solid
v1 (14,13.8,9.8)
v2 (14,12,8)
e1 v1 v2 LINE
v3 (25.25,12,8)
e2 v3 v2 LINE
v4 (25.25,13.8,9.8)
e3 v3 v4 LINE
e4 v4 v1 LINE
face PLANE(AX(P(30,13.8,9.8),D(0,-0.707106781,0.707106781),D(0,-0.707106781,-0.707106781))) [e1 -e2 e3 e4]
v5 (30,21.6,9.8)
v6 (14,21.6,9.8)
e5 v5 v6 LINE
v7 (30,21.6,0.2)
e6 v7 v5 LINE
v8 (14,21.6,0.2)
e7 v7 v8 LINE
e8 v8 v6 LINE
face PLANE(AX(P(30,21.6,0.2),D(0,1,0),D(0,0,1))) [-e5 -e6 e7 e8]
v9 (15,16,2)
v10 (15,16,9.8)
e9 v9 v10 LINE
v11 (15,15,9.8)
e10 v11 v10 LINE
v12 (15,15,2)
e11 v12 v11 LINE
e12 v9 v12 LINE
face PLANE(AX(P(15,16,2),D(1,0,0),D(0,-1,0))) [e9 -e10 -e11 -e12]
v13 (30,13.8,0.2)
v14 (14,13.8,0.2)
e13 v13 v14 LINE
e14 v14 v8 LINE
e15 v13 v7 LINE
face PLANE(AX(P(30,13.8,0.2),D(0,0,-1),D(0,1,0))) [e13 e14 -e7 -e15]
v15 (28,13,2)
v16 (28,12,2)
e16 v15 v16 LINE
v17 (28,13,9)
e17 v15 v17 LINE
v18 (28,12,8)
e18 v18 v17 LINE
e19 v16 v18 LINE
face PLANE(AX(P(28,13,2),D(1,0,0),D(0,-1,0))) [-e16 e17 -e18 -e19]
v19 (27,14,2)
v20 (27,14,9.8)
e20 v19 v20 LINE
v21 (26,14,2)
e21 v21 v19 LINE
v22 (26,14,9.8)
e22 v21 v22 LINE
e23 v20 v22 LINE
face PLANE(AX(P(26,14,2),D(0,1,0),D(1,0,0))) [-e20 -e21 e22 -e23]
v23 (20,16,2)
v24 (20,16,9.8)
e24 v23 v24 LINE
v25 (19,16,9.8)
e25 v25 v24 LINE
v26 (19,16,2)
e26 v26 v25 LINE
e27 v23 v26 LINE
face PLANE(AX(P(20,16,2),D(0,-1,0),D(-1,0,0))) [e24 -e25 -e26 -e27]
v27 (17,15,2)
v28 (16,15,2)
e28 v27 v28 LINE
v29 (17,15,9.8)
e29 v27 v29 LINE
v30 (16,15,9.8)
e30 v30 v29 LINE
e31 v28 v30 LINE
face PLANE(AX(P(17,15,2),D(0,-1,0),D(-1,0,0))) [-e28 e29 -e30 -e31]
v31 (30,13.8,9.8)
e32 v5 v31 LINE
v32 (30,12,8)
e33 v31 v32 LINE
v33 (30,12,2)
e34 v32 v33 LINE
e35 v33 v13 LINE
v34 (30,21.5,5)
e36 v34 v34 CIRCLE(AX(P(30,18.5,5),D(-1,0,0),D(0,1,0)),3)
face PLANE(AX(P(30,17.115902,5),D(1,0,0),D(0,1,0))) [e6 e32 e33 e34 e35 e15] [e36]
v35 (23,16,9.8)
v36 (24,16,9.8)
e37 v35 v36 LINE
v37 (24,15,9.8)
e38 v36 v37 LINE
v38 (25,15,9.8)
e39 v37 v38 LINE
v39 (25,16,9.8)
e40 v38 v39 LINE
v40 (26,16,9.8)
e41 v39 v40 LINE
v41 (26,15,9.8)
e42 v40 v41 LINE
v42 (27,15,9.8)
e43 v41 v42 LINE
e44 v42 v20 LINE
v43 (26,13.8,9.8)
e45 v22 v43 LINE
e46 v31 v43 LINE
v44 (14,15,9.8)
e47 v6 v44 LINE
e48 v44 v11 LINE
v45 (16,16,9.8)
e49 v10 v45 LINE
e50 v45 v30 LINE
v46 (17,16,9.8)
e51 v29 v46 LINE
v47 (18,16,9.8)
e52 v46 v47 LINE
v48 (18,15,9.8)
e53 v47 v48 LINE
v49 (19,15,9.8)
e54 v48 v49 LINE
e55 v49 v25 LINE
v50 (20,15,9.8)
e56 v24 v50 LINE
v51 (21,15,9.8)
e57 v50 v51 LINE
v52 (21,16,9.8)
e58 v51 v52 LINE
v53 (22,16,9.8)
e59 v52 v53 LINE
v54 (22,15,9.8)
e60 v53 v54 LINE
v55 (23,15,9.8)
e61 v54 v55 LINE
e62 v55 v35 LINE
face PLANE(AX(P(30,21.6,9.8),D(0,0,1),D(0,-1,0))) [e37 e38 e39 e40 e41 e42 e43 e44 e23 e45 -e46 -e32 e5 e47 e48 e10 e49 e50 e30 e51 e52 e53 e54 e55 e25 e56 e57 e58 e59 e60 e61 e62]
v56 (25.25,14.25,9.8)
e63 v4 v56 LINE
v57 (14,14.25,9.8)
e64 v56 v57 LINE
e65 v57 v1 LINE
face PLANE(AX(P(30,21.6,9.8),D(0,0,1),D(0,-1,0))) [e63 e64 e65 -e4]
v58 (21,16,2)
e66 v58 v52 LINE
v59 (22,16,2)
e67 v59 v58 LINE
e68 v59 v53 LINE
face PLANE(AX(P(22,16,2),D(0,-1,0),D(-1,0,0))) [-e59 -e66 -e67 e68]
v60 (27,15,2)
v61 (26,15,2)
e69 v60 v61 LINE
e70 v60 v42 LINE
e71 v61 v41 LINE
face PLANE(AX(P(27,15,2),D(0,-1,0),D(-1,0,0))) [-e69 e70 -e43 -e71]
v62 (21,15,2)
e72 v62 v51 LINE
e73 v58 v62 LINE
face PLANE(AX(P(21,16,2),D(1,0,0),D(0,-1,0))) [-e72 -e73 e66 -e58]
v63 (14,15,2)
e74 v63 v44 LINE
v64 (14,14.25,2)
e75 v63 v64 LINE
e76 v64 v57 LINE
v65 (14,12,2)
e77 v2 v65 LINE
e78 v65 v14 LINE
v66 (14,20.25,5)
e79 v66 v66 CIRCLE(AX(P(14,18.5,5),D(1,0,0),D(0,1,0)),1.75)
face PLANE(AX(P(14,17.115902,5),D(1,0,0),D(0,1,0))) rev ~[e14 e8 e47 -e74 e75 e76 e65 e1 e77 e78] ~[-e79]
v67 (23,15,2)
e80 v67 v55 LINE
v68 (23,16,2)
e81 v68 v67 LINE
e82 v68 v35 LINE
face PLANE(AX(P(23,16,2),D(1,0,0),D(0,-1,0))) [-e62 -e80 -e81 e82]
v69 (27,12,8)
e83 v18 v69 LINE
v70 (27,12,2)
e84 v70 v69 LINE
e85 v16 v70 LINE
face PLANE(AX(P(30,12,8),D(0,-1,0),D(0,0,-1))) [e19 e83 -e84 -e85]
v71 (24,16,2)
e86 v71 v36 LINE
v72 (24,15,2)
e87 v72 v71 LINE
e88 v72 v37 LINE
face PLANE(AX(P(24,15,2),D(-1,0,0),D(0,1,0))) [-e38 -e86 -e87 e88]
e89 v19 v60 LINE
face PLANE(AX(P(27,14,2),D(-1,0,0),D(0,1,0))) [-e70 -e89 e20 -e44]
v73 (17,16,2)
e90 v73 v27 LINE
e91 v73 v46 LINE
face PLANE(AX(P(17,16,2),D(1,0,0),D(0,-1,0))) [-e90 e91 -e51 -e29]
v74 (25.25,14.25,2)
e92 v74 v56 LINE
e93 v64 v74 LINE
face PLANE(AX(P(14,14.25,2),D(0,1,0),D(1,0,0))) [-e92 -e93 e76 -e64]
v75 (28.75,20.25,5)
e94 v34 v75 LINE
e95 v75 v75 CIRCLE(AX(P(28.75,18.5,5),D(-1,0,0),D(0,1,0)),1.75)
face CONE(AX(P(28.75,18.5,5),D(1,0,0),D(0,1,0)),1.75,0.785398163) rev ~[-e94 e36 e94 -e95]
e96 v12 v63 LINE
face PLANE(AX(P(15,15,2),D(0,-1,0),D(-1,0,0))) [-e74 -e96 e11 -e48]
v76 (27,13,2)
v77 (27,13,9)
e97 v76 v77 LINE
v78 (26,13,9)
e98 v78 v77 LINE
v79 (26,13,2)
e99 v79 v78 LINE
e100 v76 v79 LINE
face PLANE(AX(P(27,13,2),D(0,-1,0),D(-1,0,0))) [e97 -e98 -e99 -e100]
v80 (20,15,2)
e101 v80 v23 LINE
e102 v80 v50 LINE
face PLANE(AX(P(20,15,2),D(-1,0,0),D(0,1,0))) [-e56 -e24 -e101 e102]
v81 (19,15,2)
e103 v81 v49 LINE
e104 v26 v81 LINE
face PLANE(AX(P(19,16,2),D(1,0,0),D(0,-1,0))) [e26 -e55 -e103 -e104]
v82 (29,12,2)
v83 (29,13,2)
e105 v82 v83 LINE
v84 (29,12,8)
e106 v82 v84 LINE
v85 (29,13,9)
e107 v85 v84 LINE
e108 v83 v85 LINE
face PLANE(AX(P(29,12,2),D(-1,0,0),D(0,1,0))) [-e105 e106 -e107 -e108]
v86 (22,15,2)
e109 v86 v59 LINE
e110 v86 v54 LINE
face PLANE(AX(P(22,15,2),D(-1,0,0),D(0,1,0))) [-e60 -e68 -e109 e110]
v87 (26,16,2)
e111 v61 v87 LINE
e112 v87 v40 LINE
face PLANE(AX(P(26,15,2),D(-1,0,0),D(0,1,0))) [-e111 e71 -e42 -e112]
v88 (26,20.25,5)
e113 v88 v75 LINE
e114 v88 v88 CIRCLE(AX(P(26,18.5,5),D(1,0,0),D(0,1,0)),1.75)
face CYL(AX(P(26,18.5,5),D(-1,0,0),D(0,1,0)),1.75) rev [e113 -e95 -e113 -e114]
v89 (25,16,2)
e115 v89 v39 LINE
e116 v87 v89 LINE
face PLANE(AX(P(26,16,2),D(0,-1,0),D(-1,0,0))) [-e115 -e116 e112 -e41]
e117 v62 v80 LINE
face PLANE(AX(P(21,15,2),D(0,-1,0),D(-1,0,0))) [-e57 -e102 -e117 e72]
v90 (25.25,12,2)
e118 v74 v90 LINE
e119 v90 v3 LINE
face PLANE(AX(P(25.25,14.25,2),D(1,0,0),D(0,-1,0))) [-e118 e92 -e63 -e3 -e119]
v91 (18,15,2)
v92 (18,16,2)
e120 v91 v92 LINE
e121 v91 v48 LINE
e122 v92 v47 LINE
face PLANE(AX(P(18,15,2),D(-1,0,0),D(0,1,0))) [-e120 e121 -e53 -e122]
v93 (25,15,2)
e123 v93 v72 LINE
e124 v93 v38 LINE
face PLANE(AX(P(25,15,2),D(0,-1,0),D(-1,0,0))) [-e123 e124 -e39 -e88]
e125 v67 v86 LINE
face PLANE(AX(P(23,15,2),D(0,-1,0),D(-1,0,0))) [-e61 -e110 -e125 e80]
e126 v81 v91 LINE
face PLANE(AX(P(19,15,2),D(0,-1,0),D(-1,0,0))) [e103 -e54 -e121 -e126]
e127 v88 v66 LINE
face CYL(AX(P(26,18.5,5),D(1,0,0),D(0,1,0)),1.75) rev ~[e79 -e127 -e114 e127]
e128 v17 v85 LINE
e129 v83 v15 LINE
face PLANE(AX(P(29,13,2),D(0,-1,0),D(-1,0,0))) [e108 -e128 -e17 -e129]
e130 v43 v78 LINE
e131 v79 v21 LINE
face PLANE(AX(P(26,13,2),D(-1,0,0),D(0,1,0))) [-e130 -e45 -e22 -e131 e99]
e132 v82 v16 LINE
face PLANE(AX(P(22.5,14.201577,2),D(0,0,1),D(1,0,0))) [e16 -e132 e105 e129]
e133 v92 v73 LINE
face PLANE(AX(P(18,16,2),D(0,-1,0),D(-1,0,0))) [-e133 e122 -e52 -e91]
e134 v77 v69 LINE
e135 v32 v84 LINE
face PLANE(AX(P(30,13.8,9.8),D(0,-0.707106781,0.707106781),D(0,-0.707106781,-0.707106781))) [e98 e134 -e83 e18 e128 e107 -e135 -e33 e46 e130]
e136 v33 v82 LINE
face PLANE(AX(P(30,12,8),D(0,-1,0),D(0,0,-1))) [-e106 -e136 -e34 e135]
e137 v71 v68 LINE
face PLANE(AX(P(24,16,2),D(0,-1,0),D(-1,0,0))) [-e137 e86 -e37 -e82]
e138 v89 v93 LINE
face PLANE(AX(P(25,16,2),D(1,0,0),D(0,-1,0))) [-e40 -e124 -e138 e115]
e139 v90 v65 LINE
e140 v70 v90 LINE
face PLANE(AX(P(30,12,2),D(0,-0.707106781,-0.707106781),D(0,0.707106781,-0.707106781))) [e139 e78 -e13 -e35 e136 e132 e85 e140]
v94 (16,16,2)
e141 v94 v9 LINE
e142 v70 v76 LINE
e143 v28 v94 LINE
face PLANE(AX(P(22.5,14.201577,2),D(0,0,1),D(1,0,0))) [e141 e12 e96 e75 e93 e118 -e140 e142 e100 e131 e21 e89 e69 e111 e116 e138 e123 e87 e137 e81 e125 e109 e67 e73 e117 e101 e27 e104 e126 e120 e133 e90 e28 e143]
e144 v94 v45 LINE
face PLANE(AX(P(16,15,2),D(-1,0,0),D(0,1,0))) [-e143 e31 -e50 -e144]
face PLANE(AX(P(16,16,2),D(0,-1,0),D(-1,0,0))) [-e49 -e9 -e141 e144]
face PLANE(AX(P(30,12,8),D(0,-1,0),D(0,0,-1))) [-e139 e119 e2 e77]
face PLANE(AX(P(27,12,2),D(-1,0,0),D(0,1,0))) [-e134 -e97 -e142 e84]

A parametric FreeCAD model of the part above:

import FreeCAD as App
import Part
import Sketcher


def edges_at(feature, points):
    """Names of the edges that pass closest to the given points."""
    edges = feature.Shape.Edges
    near = lambda p: min(range(len(edges)), key=lambda i: edges[i].distToShape(Part.Vertex(*p))[0])
    return sorted({f"Edge{near(p) + 1}" for p in points})


def add_polygon(sketch, points):
    """Adds a closed chain of lines whose ends are joined by coincident constraints."""
    first, n = sketch.GeometryCount, len(points)
    for a, b in zip(points, points[1:] + points[:1]):
        sketch.addGeometry(Part.LineSegment(App.Vector(*a, 0), App.Vector(*b, 0)), False)
    for i in range(n):
        sketch.addConstraint(Sketcher.Constraint("Coincident", first + i, 2, first + (i + 1) % n, 1))

doc = App.newDocument("Part")
body = doc.addObject("PartDesign::Body", "Body")

# Sketch on YZ plane
sketch1 = body.newObject("Sketcher::SketchObject", "Sketch")
sketch1.AttachmentSupport = (doc.getObject("YZ_Plane"), [""])
sketch1.MapMode = "FlatFace"
add_polygon(sketch1, [(0, 3), (0, -3), (1.8, -4.8), (9.6, -4.8), (9.6, 4.8), (1.8, 4.8)])  # lines 0-5
sketch1.addConstraint([
    Sketcher.Constraint("Vertical", 0),
    Sketcher.Constraint("Horizontal", 2),
    Sketcher.Constraint("Vertical", 3),
    Sketcher.Constraint("Horizontal", 4),
    Sketcher.Constraint("Symmetric", 0, 2, 5, 2, -1, 1),
    Sketcher.Constraint("Symmetric", 1, 2, 4, 2, -1),
    Sketcher.Constraint("Perpendicular", 1, 5),
    Sketcher.Constraint("DistanceY", 0, 2, 0, 1, 6.0),
    Sketcher.Constraint("DistanceX", 2, 1, 2, 2, 7.8),
    Sketcher.Constraint("DistanceY", 3, 1, 3, 2, 9.6),
])
pad1 = body.newObject("PartDesign::Pad", "Pad")
pad1.Profile = sketch1
pad1.Length = 16
pad1.Reversed = True

# Sketch on YZ plane
sketch2 = body.newObject("Sketcher::SketchObject", "Sketch001")
sketch2.AttachmentSupport = (doc.getObject("YZ_Plane"), [""])
sketch2.MapMode = "FlatFace"
sketch2.AttachmentOffset = App.Placement(App.Vector(0, 0, -4), App.Rotation())
sketch2.addGeometry(Part.Circle(App.Vector(6.5, 0, 0), App.Vector(0, 0, 1), 1.75), False)
sketch2.addConstraint([
    Sketcher.Constraint("PointOnObject", 0, 3, -1),
    Sketcher.Constraint("Diameter", 0, 3.5),
    Sketcher.Constraint("DistanceX", -1, 1, 0, 3, 6.5),
])
pocket1 = body.newObject("PartDesign::Pocket", "Pocket")
pocket1.Profile = sketch2
pocket1.Type = "ThroughAll"
pocket1.Midplane = True

# Sketch on XY plane
sketch3 = body.newObject("Sketcher::SketchObject", "Sketch002")
sketch3.AttachmentSupport = (doc.getObject("XY_Plane"), [""])
sketch3.MapMode = "FlatFace"
sketch3.AttachmentOffset = App.Placement(App.Vector(0, 0, -3), App.Rotation())
add_polygon(sketch3, [(0, 0), (-1, 0), (-1, 1), (-2, 1), (-2, 0), (-3, 0), (-3, 1), (-4, 1), (-4, 2), (-3, 2), (-3, 3), (-4, 3), (-4, 4), (-5, 4), (-5, 3), (-6, 3), (-6, 4), (-7, 4), (-7, 3), (-8, 3), (-8, 4), (-9, 4), (-9, 3), (-10, 3), (-10, 4), (-11, 4), (-11, 3), (-12, 3), (-12, 4), (-13, 4), (-13, 3), (-14, 3), (-14, 4), (-15, 4), (-15, 3), (-16, 3), (-16, 2.25), (-4.75, 2.25), (-4.75, -0.75), (0, -0.75)])  # lines 0-39
sketch3.addConstraint([
    Sketcher.Constraint("Horizontal", 0),
    Sketcher.Constraint("Vertical", 1),
    Sketcher.Constraint("Horizontal", 2),
    Sketcher.Constraint("Vertical", 3),
    Sketcher.Constraint("Horizontal", 4),
    Sketcher.Constraint("Vertical", 5),
    Sketcher.Constraint("Horizontal", 6),
    Sketcher.Constraint("Vertical", 7),
    Sketcher.Constraint("Horizontal", 8),
    Sketcher.Constraint("Vertical", 9),
    Sketcher.Constraint("Horizontal", 10),
    Sketcher.Constraint("Vertical", 11),
    Sketcher.Constraint("Horizontal", 12),
    Sketcher.Constraint("Vertical", 13),
    Sketcher.Constraint("Horizontal", 14),
    Sketcher.Constraint("Vertical", 15),
    Sketcher.Constraint("Horizontal", 16),
    Sketcher.Constraint("Vertical", 17),
    Sketcher.Constraint("Horizontal", 18),
    Sketcher.Constraint("Vertical", 19),
    Sketcher.Constraint("Horizontal", 20),
    Sketcher.Constraint("Vertical", 21),
    Sketcher.Constraint("Horizontal", 22),
    Sketcher.Constraint("Vertical", 23),
    Sketcher.Constraint("Horizontal", 24),
    Sketcher.Constraint("Vertical", 25),
    Sketcher.Constraint("Horizontal", 26),
    Sketcher.Constraint("Vertical", 27),
    Sketcher.Constraint("Horizontal", 28),
    Sketcher.Constraint("Vertical", 29),
    Sketcher.Constraint("Horizontal", 30),
    Sketcher.Constraint("Vertical", 31),
    Sketcher.Constraint("Horizontal", 32),
    Sketcher.Constraint("Vertical", 33),
    Sketcher.Constraint("Horizontal", 34),
    Sketcher.Constraint("Vertical", 35),
    Sketcher.Constraint("Horizontal", 36),
    Sketcher.Constraint("Vertical", 37),
    Sketcher.Constraint("Horizontal", 38),
    Sketcher.Constraint("Vertical", 39),
    Sketcher.Constraint("Coincident", 39, 2, -1, 1),
    Sketcher.Constraint("PointOnObject", 3, 2, -1),
    Sketcher.Constraint("Horizontal", 2, 2, 5, 2),
    Sketcher.Constraint("Horizontal", 10, 2, 13, 2),
    Sketcher.Constraint("Horizontal", 12, 2, 15, 2),
    Sketcher.Constraint("Horizontal", 14, 2, 17, 2),
    Sketcher.Constraint("Horizontal", 16, 2, 19, 2),
    Sketcher.Constraint("Horizontal", 18, 2, 21, 2),
    Sketcher.Constraint("Horizontal", 20, 2, 23, 2),
    Sketcher.Constraint("Horizontal", 22, 2, 25, 2),
    Sketcher.Constraint("Horizontal", 24, 2, 27, 2),
    Sketcher.Constraint("Horizontal", 26, 2, 29, 2),
    Sketcher.Constraint("Horizontal", 28, 2, 31, 2),
    Sketcher.Constraint("Horizontal", 30, 2, 33, 2),
    Sketcher.Constraint("Vertical", 5, 2, 8, 2),
    Sketcher.Constraint("Vertical", 7, 2, 10, 2),
    Sketcher.Constraint("Equal", 0, 2),
    Sketcher.Constraint("Equal", 2, 4),
    Sketcher.Constraint("Equal", 4, 6),
    Sketcher.Constraint("Equal", 10, 12),
    Sketcher.Constraint("Equal", 12, 14),
    Sketcher.Constraint("Equal", 14, 16),
    Sketcher.Constraint("Equal", 16, 18),
    Sketcher.Constraint("Equal", 18, 20),
    Sketcher.Constraint("Equal", 20, 22),
    Sketcher.Constraint("Equal", 22, 24),
    Sketcher.Constraint("Equal", 24, 26),
    Sketcher.Constraint("Equal", 26, 28),
    Sketcher.Constraint("Equal", 28, 30),
    Sketcher.Constraint("Equal", 30, 32),
    Sketcher.Constraint("Equal", 32, 34),
    Sketcher.Constraint("Equal", 34, 1),
    Sketcher.Constraint("Equal", 5, 7),
    Sketcher.Constraint("Equal", 7, 9),
    Sketcher.Constraint("Equal", 9, 11),
    Sketcher.Constraint("Equal", 35, 39),
    Sketcher.Constraint("DistanceX", 0, 2, 0, 1, 1.0),
    Sketcher.Constraint("DistanceX", 36, 1, 36, 2, 11.25),
    Sketcher.Constraint("DistanceY", 35, 2, 35, 1, 0.75),
])
pocket2 = body.newObject("PartDesign::Pocket", "Pocket001")
pocket2.Profile = sketch3
pocket2.Type = "ThroughAll"
pocket2.Reversed = True
doc.recompute()

chamfer = body.newObject("PartDesign::Chamfer", "Chamfer")
chamfer.Base = (pocket2, edges_at(pocket2, [(0, 4.75, 0)]))
chamfer.Size = 1.25
body2 = doc.addObject("PartDesign::Body", "Body001")
doc.recompute()

body.Placement = App.Placement(App.Vector(30, 12, 5), App.Rotation(App.Vector(0, 0, 1), 0))
boolean = body2.newObject("PartDesign::Boolean", "Boolean")
boolean.Type = "Fuse"
boolean.addObjects([body])

doc.recompute()
